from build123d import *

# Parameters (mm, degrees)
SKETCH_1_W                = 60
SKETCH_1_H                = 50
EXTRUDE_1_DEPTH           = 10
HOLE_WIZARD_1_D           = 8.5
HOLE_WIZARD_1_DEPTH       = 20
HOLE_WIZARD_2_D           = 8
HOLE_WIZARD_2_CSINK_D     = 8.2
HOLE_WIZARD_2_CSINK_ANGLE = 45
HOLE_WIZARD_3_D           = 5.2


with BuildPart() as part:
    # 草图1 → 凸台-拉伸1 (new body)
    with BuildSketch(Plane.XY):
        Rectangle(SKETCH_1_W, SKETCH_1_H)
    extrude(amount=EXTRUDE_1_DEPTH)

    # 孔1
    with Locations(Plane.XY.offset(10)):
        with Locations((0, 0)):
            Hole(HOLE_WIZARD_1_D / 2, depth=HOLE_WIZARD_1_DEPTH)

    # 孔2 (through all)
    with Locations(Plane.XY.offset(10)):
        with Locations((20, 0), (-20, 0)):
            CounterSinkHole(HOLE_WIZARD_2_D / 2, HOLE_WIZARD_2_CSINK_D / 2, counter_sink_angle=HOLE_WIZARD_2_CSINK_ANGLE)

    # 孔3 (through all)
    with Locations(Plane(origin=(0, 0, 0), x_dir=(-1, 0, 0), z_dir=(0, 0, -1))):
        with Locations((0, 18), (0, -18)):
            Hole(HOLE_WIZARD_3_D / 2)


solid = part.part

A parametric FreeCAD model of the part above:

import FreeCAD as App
import Part
import Sketcher

V = App.Vector


def add_polygon(sketch, points):
    """Adds a closed chain of lines whose ends are joined by coincident constraints."""
    first, n = sketch.GeometryCount, len(points)
    for a, b in zip(points, points[1:] + points[:1]):
        sketch.addGeometry(Part.LineSegment(App.Vector(*a, 0), App.Vector(*b, 0)), False)
    for i in range(n):
        sketch.addConstraint(Sketcher.Constraint("Coincident", first + i, 2, first + (i + 1) % n, 1))

doc = App.newDocument("Part")
params = doc.addObject("Spreadsheet::Sheet", "Params")
for row, (alias, value) in enumerate([
    ("sketch1_width", "60 mm"),
    ("sketch1_height", "50 mm"),
    ("pad1_length", "10 mm"),
    ("sketch2_diameter", "8.5 mm"),
    ("hole_diameter", "8.5 mm"),
    ("hole_depth", "20 mm"),
    ("sketch3_diameter", "8 mm"),
    ("hole2_diameter", "8 mm"),
    ("hole2_csink_diameter", "8.2 mm"),
    ("sketch4_diameter", "5.2 mm"),
    ("hole3_diameter", "5.2 mm"),
], start=1):
    params.set(f"A{row}", alias)
    params.set(f"B{row}", "=" + value)
    params.setAlias(f"B{row}", alias)

body = doc.addObject("PartDesign::Body", "Body")

# Sketch on XY plane
sketch1 = body.newObject("Sketcher::SketchObject", "Sketch")
sketch1.AttachmentSupport = (doc.getObject("XY_Plane"), [""])
sketch1.MapMode = "FlatFace"
add_polygon(sketch1, [(-30, 25), (-30, -25), (30, -25), (30, 25)])  # lines 0-3
sketch1.addConstraint([
    Sketcher.Constraint("Vertical", 0),
    Sketcher.Constraint("Horizontal", 1),
    Sketcher.Constraint("Vertical", 2),
    Sketcher.Constraint("Horizontal", 3),
    Sketcher.Constraint("Symmetric", 0, 2, 2, 2, -1, 1),
    Sketcher.Constraint("DistanceX", 1, 1, 1, 2, 60.0),
    Sketcher.Constraint("DistanceY", 0, 2, 0, 1, 50.0),
])
sketch1.setExpression("Constraints[9]", "Params.sketch1_width")
sketch1.setExpression("Constraints[10]", "Params.sketch1_height")
pad1 = body.newObject("PartDesign::Pad", "Pad")
pad1.Profile = sketch1
pad1.setExpression("Length", "Params.pad1_length")

# Sketch on XY plane
sketch2 = body.newObject("Sketcher::SketchObject", "Sketch001")
sketch2.AttachmentSupport = (doc.getObject("XY_Plane"), [""])
sketch2.MapMode = "FlatFace"
sketch2.AttachmentOffset = App.Placement(V(0, 0, 10), App.Rotation())
sketch2.addGeometry(Part.Circle(V(0, 0, 0), V(0, 0, 1), 4.25), False)
sketch2.addConstraint([
    Sketcher.Constraint("Coincident", 0, 3, -1, 1),
    Sketcher.Constraint("Diameter", 0, 8.5),
])
sketch2.setExpression("Constraints[1]", "Params.sketch2_diameter")
doc.recompute()
hole = body.newObject("PartDesign::Hole", "Hole")
hole.Profile = sketch2
hole.ThreadType = "None"
hole.setExpression("Diameter", "Params.hole_diameter")
hole.DepthType = "Dimension"
hole.setExpression("Depth", "Params.hole_depth")
hole.DrillPoint = "Flat"

# Sketch on XY plane
sketch3 = body.newObject("Sketcher::SketchObject", "Sketch002")
sketch3.AttachmentSupport = (doc.getObject("XY_Plane"), [""])
sketch3.MapMode = "FlatFace"
sketch3.AttachmentOffset = App.Placement(V(0, 0, 10), App.Rotation())
sketch3.addGeometry([
    Part.Circle(V(20, 0, 0), V(0, 0, 1), 4),
    Part.Circle(V(-20, 0, 0), V(0, 0, 1), 4),
], False)
sketch3.addConstraint([
    Sketcher.Constraint("Equal", 0, 1),
    Sketcher.Constraint("Symmetric", 0, 3, 1, 3, -1, 1),
    Sketcher.Constraint("PointOnObject", 0, 3, -1),
    Sketcher.Constraint("Diameter", 0, 8.0),
    Sketcher.Constraint("DistanceX", -1, 1, 0, 3, 20.0),
])
sketch3.setExpression("Constraints[3]", "Params.sketch3_diameter")
doc.recompute()
hole2 = body.newObject("PartDesign::Hole", "Hole001")
hole2.Profile = sketch3
hole2.ThreadType = "None"
hole2.setExpression("Diameter", "Params.hole2_diameter")
hole2.DepthType = "ThroughAll"
hole2.HoleCutType = "Countersink"
hole2.setExpression("HoleCutDiameter", "Params.hole2_csink_diameter")
hole2.HoleCutCountersinkAngle = 45

# Sketch on XY plane
sketch4 = body.newObject("Sketcher::SketchObject", "Sketch003")
sketch4.AttachmentSupport = (doc.getObject("XY_Plane"), [""])
sketch4.MapMode = "FlatFace"
sketch4.addGeometry([
    Part.Circle(V(0, 18, 0), V(0, 0, 1), 2.6),
    Part.Circle(V(0, -18, 0), V(0, 0, 1), 2.6),
], False)
sketch4.addConstraint([
    Sketcher.Constraint("Equal", 0, 1),
    Sketcher.Constraint("Symmetric", 0, 3, 1, 3, -1, 1),
    Sketcher.Constraint("PointOnObject", 0, 3, -2),
    Sketcher.Constraint("Diameter", 0, 5.2),
    Sketcher.Constraint("DistanceY", -1, 1, 0, 3, 18.0),
])
sketch4.setExpression("Constraints[3]", "Params.sketch4_diameter")
doc.recompute()
hole3 = body.newObject("PartDesign::Hole", "Hole002")
hole3.Profile = sketch4
hole3.ThreadType = "None"
hole3.setExpression("Diameter", "Params.hole3_diameter")
hole3.DepthType = "ThroughAll"
hole3.Reversed = True

doc.recompute()
